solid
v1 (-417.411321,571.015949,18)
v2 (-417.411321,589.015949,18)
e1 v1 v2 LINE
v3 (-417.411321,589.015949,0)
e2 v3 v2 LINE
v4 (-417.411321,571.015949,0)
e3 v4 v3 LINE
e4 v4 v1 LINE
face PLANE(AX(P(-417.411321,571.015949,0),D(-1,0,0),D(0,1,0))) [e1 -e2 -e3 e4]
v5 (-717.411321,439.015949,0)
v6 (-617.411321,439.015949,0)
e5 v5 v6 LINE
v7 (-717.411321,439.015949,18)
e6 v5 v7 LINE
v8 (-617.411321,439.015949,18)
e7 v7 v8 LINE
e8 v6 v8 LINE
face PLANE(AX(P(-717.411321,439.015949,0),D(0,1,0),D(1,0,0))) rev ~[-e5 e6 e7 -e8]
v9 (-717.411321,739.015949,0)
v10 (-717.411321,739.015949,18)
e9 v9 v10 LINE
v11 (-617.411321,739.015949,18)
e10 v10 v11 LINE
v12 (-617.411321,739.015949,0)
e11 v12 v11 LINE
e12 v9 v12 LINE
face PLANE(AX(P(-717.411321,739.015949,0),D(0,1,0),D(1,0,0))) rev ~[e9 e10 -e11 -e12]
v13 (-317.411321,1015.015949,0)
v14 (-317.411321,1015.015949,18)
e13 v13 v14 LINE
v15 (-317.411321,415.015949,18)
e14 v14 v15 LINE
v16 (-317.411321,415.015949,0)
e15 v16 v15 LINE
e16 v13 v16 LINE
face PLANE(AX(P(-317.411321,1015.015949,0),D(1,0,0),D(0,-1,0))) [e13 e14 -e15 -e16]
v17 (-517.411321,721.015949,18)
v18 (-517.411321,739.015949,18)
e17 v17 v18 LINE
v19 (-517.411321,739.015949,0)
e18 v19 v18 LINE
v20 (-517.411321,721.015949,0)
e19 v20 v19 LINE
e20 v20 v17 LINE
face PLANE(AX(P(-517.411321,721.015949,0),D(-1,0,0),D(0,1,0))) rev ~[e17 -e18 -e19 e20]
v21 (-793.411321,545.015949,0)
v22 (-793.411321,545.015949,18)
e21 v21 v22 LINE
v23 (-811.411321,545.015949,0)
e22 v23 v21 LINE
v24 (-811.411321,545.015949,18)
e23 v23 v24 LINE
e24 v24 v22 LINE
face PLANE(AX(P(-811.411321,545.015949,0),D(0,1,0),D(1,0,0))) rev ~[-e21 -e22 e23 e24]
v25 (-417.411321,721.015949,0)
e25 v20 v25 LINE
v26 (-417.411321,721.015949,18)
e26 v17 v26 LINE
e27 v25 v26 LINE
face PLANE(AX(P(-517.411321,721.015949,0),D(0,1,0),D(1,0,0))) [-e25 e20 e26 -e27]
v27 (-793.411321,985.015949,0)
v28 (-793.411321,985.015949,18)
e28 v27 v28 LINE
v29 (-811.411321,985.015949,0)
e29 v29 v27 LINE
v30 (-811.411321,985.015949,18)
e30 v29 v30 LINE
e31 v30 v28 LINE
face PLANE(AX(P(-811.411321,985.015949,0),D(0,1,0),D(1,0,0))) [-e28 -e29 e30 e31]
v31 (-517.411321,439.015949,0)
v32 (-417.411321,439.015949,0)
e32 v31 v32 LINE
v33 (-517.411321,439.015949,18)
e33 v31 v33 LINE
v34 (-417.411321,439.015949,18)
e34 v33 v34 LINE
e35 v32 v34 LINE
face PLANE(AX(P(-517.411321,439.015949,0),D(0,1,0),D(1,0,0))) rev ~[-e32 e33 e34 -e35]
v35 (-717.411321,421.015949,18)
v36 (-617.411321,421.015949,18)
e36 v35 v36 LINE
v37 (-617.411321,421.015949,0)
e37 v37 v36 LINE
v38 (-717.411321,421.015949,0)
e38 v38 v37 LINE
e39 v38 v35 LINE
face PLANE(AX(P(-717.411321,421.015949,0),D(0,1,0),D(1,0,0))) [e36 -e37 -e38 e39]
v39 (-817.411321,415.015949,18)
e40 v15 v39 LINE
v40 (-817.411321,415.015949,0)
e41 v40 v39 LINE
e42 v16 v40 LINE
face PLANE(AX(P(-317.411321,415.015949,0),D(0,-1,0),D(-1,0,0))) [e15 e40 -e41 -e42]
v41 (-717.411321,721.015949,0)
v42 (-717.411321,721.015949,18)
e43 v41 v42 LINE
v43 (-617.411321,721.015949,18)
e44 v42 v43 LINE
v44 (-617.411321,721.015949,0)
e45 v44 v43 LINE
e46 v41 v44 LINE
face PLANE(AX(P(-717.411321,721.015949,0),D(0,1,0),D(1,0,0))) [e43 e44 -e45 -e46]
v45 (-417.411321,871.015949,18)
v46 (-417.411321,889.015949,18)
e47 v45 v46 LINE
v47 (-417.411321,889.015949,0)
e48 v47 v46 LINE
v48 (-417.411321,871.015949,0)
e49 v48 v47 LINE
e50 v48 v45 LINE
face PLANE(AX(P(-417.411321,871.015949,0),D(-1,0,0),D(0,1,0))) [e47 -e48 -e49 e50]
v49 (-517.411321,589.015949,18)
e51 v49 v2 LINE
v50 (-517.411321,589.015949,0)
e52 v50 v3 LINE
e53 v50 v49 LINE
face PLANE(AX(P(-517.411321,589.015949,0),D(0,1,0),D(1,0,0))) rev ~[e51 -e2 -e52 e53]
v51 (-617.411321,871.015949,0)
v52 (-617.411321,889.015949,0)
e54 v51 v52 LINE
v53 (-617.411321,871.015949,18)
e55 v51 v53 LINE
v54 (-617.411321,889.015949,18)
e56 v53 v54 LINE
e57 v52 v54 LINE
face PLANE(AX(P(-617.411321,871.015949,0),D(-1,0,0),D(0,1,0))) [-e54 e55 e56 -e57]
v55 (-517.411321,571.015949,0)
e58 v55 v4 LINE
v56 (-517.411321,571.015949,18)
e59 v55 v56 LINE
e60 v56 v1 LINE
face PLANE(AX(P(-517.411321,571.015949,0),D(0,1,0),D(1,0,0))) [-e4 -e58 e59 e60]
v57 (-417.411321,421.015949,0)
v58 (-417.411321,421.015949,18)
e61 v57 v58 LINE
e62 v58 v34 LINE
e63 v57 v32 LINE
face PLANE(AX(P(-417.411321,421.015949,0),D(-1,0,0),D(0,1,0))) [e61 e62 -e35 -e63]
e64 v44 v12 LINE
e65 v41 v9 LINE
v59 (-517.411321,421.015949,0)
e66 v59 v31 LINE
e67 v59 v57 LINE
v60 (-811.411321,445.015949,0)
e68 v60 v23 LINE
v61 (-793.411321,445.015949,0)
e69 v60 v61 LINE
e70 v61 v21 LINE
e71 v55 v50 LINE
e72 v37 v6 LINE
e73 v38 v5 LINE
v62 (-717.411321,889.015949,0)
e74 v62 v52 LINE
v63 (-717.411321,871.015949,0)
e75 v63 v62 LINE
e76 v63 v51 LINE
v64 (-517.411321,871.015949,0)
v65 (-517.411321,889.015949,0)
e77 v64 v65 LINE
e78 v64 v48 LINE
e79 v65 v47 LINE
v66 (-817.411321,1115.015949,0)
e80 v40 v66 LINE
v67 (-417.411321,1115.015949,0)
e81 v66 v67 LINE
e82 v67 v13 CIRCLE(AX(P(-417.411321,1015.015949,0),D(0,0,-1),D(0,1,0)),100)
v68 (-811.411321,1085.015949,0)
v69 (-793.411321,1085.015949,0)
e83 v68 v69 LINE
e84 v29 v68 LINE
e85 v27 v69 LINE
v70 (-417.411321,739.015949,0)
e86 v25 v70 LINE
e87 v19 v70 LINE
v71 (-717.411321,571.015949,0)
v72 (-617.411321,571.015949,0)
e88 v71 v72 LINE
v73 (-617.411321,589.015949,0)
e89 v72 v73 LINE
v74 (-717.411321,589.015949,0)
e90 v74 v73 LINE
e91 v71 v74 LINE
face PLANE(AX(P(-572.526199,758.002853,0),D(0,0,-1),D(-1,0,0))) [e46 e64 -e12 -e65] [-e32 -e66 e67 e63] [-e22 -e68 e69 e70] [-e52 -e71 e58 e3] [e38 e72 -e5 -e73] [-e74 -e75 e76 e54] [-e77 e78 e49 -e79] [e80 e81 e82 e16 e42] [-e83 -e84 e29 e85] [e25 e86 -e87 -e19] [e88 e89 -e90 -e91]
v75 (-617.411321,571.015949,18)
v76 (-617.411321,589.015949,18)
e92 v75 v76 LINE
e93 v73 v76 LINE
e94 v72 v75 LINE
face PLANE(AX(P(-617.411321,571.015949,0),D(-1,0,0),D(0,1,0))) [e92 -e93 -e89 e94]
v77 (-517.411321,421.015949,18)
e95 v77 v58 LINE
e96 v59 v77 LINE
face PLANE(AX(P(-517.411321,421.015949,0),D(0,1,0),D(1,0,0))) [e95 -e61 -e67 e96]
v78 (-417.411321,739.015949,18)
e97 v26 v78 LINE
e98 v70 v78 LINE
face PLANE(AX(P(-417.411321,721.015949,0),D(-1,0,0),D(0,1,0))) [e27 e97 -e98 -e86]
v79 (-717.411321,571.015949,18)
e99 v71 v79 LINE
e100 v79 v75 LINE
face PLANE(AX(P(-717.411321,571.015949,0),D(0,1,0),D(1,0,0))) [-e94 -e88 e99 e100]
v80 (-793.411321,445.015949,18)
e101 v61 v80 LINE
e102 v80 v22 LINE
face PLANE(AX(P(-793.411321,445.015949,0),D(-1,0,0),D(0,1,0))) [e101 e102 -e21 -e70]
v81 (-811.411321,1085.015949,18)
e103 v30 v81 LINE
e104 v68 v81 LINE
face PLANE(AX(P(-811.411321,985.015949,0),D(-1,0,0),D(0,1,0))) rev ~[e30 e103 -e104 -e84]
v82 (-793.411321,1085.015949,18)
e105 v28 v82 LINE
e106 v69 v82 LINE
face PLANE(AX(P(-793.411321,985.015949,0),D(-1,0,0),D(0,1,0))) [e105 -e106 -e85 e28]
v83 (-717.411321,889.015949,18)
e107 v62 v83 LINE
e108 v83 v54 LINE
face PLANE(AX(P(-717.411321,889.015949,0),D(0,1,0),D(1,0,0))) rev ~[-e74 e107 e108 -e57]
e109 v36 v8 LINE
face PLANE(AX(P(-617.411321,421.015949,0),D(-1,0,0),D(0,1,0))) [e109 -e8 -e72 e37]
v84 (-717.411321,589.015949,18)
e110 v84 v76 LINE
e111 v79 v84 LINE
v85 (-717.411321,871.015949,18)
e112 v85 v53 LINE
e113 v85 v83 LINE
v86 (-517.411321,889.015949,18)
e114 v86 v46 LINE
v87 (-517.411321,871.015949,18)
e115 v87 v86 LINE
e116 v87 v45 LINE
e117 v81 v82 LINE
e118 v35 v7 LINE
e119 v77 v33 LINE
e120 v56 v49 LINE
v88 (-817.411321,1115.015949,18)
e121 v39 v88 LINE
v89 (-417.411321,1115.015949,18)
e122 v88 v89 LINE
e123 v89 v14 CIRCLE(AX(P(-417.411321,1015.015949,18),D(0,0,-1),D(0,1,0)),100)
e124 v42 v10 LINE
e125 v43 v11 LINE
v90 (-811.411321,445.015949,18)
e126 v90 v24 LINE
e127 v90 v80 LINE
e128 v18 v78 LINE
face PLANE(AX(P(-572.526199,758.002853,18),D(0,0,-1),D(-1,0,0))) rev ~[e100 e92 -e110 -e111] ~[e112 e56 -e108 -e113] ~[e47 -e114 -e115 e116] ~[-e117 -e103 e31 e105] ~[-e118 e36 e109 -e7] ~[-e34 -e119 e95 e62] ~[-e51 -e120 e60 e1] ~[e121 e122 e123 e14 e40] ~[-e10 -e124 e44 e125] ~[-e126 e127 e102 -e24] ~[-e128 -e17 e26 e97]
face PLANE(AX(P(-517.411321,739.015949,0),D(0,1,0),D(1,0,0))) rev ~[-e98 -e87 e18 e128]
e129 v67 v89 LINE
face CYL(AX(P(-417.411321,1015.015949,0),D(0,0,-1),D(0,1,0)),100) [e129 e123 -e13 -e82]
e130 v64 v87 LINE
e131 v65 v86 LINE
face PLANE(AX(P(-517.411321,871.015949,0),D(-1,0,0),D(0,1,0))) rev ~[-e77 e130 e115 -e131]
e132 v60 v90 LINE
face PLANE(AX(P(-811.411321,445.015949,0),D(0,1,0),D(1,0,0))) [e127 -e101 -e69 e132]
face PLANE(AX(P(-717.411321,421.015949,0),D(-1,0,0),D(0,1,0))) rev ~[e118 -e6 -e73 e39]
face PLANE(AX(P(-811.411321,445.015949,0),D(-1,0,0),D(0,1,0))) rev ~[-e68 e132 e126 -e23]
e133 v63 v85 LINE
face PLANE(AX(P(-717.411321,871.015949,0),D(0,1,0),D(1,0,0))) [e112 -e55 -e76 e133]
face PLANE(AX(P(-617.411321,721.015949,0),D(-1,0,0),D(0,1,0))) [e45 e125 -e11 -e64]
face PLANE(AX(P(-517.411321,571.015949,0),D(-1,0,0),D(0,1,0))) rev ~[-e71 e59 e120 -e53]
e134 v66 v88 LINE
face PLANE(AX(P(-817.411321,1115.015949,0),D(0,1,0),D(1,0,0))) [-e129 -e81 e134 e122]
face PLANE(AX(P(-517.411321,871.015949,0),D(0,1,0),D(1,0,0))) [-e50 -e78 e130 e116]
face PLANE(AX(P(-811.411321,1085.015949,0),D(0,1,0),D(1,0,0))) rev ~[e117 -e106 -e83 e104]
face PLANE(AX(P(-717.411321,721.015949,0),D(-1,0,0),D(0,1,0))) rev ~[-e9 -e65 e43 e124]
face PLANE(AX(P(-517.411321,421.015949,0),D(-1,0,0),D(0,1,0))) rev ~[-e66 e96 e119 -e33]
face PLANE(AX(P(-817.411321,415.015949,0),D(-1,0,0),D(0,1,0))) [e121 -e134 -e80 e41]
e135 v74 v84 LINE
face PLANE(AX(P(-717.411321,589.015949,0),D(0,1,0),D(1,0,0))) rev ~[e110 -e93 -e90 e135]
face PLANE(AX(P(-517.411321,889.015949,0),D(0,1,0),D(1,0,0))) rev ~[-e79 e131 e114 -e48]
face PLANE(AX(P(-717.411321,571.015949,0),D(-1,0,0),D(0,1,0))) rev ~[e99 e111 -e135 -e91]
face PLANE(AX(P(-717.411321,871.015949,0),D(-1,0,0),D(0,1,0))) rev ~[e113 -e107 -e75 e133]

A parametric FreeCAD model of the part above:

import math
import FreeCAD as App
import Part
import Sketcher
from FreeCAD import Vector
Q = App.Units.Quantity


def add_polygon(sketch, points):
    """Adds a closed chain of lines whose ends are joined by coincident constraints."""
    first, n = sketch.GeometryCount, len(points)
    for a, b in zip(points, points[1:] + points[:1]):
        sketch.addGeometry(Part.LineSegment(App.Vector(*a, 0), App.Vector(*b, 0)), False)
    for i in range(n):
        sketch.addConstraint(Sketcher.Constraint("Coincident", first + i, 2, first + (i + 1) % n, 1))

doc = App.newDocument("Part")
body = doc.addObject("PartDesign::Body", "Body")

# Sketch on XY plane
sketch1 = body.newObject("Sketcher::SketchObject", "Sketch")
sketch1.AttachmentSupport = (doc.getObject("XY_Plane"), [""])
sketch1.MapMode = "FlatFace"
sketch1.addGeometry(Part.LineSegment(Vector(-417, 1115, 0), Vector(-817, 1115, 0)), False)  # 0
sketch1.addGeometry(Part.LineSegment(Vector(-817, 1115, 0), Vector(-817, 415, 0)), False)  # 1
sketch1.addGeometry(Part.LineSegment(Vector(-817, 415, 0), Vector(-317, 415, 0)), False)  # 2
sketch1.addGeometry(Part.LineSegment(Vector(-317, 415, 0), Vector(-317, 1015, 0)), False)  # 3
sketch1.addGeometry(Part.ArcOfCircle(Part.Circle(Vector(-417, 1015, 0), Vector(0, 0, 1), 100), math.radians(0), math.radians(90)), False)  # 4
add_polygon(sketch1, [(-517, 421), (-517, 439), (-417, 439), (-417, 421)])  # lines 5-8
add_polygon(sketch1, [(-517, 571), (-517, 589), (-417, 589), (-417, 571)])  # lines 9-12
add_polygon(sketch1, [(-517, 721), (-517, 739), (-417, 739), (-417, 721)])  # lines 13-16
add_polygon(sketch1, [(-717, 421), (-717, 439), (-617, 439), (-617, 421)])  # lines 17-20
add_polygon(sketch1, [(-717, 571), (-717, 589), (-617, 589), (-617, 571)])  # lines 21-24
add_polygon(sketch1, [(-811, 445), (-811, 545), (-793, 545), (-793, 445)])  # lines 25-28
add_polygon(sketch1, [(-717, 721), (-717, 739), (-617, 739), (-617, 721)])  # lines 29-32
add_polygon(sketch1, [(-517, 871), (-517, 889), (-417, 889), (-417, 871)])  # lines 33-36
add_polygon(sketch1, [(-717, 871), (-717, 889), (-617, 889), (-617, 871)])  # lines 37-40
add_polygon(sketch1, [(-811, 985), (-811, 1085), (-793, 1085), (-793, 985)])  # lines 41-44
sketch1.addConstraint([
    Sketcher.Constraint("Coincident", 0, 2, 1, 1),
    Sketcher.Constraint("Coincident", 1, 2, 2, 1),
    Sketcher.Constraint("Coincident", 2, 2, 3, 1),
    Sketcher.Constraint("Tangent", 3, 2, 4, 1),
    Sketcher.Constraint("Tangent", 4, 2, 0, 1),
    Sketcher.Constraint("Horizontal", 0),
    Sketcher.Constraint("Vertical", 1),
    Sketcher.Constraint("Horizontal", 2),
    Sketcher.Constraint("Vertical", 3),
    Sketcher.Constraint("Vertical", 5),
    Sketcher.Constraint("Horizontal", 6),
    Sketcher.Constraint("Vertical", 7),
    Sketcher.Constraint("Horizontal", 8),
    Sketcher.Constraint("Vertical", 9),
    Sketcher.Constraint("Horizontal", 10),
    Sketcher.Constraint("Vertical", 11),
    Sketcher.Constraint("Horizontal", 12),
    Sketcher.Constraint("Vertical", 13),
    Sketcher.Constraint("Horizontal", 14),
    Sketcher.Constraint("Vertical", 15),
    Sketcher.Constraint("Horizontal", 16),
    Sketcher.Constraint("Vertical", 17),
    Sketcher.Constraint("Horizontal", 18),
    Sketcher.Constraint("Vertical", 19),
    Sketcher.Constraint("Horizontal", 20),
    Sketcher.Constraint("Vertical", 21),
    Sketcher.Constraint("Horizontal", 22),
    Sketcher.Constraint("Vertical", 23),
    Sketcher.Constraint("Horizontal", 24),
    Sketcher.Constraint("Vertical", 25),
    Sketcher.Constraint("Horizontal", 26),
    Sketcher.Constraint("Vertical", 27),
    Sketcher.Constraint("Horizontal", 28),
    Sketcher.Constraint("Vertical", 29),
    Sketcher.Constraint("Horizontal", 30),
    Sketcher.Constraint("Vertical", 31),
    Sketcher.Constraint("Horizontal", 32),
    Sketcher.Constraint("Vertical", 33),
    Sketcher.Constraint("Horizontal", 34),
    Sketcher.Constraint("Vertical", 35),
    Sketcher.Constraint("Horizontal", 36),
    Sketcher.Constraint("Vertical", 37),
    Sketcher.Constraint("Horizontal", 38),
    Sketcher.Constraint("Vertical", 39),
    Sketcher.Constraint("Horizontal", 40),
    Sketcher.Constraint("Vertical", 41),
    Sketcher.Constraint("Horizontal", 42),
    Sketcher.Constraint("Vertical", 43),
    Sketcher.Constraint("Horizontal", 44),
    Sketcher.Constraint("Horizontal", 6, 2, 17, 2),
    Sketcher.Constraint("Horizontal", 8, 2, 19, 2),
    Sketcher.Constraint("Horizontal", 10, 2, 21, 2),
    Sketcher.Constraint("Horizontal", 12, 2, 23, 2),
    Sketcher.Constraint("Horizontal", 14, 2, 29, 2),
    Sketcher.Constraint("Horizontal", 16, 2, 31, 2),
    Sketcher.Constraint("Horizontal", 34, 2, 37, 2),
    Sketcher.Constraint("Horizontal", 36, 2, 39, 2),
    Sketcher.Constraint("Vertical", 4, 2, 6, 2),
    Sketcher.Constraint("Vertical", 8, 2, 9, 2),
    Sketcher.Constraint("Vertical", 7, 2, 10, 2),
    Sketcher.Constraint("Vertical", 12, 2, 13, 2),
    Sketcher.Constraint("Vertical", 11, 2, 14, 2),
    Sketcher.Constraint("Vertical", 20, 2, 21, 2),
    Sketcher.Constraint("Vertical", 19, 2, 22, 2),
    Sketcher.Constraint("Vertical", 24, 2, 29, 2),
    Sketcher.Constraint("Vertical", 23, 2, 30, 2),
    Sketcher.Constraint("Vertical", 16, 2, 33, 2),
    Sketcher.Constraint("Vertical", 15, 2, 34, 2),
    Sketcher.Constraint("Vertical", 32, 2, 37, 2),
    Sketcher.Constraint("Vertical", 31, 2, 38, 2),
    Sketcher.Constraint("Vertical", 28, 2, 41, 2),
    Sketcher.Constraint("Vertical", 27, 2, 42, 2),
    Sketcher.Constraint("Equal", 16, 18),
    Sketcher.Constraint("Equal", 44, 5),
    Sketcher.Constraint("Equal", 7, 9),
    Sketcher.Constraint("Equal", 11, 13),
    Sketcher.Constraint("Equal", 40, 25),
    Sketcher.Constraint("Equal", 31, 33),
    Sketcher.Constraint("Equal", 27, 41),
    Sketcher.Constraint("Radius", 4, Q("100 mm")),
    Sketcher.Constraint("DistanceX", 0, 2, 0, 1, Q("400 mm")),
    Sketcher.Constraint("DistanceX", 6, 1, 6, 2, Q("100 mm")),
    Sketcher.Constraint("DistanceX", 26, 1, 26, 2, Q("18 mm")),
    Sketcher.Constraint("DistanceY", 1, 2, 1, 1, Q("700 mm")),
    Sketcher.Constraint("DistanceY", 2, 2, 5, 2, Q("24 mm")),
    Sketcher.Constraint("DistanceY", 5, 2, 9, 2, Q("150 mm")),
    Sketcher.Constraint("DistanceY", 9, 2, 13, 2, Q("150 mm")),
    Sketcher.Constraint("DistanceX", 1, 2, 17, 2, Q("100 mm")),
    Sketcher.Constraint("DistanceX", 25, 2, 24, 2, Q("94 mm")),
    Sketcher.Constraint("DistanceY", 25, 2, 24, 2, Q("26 mm")),
    Sketcher.Constraint("DistanceY", 13, 2, 33, 2, Q("150 mm")),
    Sketcher.Constraint("DistanceY", 41, 2, 0, 2, Q("30 mm")),
    Sketcher.Constraint("DistanceX", 4, 3, -1, 1, Q("417.411321 mm")),
    Sketcher.Constraint("DistanceY", -1, 1, 4, 3, Q("1015.015949 mm")),
])
pad1 = body.newObject("PartDesign::Pad", "Pad")
pad1.Profile = sketch1
pad1.Length = 18

doc.recompute()
